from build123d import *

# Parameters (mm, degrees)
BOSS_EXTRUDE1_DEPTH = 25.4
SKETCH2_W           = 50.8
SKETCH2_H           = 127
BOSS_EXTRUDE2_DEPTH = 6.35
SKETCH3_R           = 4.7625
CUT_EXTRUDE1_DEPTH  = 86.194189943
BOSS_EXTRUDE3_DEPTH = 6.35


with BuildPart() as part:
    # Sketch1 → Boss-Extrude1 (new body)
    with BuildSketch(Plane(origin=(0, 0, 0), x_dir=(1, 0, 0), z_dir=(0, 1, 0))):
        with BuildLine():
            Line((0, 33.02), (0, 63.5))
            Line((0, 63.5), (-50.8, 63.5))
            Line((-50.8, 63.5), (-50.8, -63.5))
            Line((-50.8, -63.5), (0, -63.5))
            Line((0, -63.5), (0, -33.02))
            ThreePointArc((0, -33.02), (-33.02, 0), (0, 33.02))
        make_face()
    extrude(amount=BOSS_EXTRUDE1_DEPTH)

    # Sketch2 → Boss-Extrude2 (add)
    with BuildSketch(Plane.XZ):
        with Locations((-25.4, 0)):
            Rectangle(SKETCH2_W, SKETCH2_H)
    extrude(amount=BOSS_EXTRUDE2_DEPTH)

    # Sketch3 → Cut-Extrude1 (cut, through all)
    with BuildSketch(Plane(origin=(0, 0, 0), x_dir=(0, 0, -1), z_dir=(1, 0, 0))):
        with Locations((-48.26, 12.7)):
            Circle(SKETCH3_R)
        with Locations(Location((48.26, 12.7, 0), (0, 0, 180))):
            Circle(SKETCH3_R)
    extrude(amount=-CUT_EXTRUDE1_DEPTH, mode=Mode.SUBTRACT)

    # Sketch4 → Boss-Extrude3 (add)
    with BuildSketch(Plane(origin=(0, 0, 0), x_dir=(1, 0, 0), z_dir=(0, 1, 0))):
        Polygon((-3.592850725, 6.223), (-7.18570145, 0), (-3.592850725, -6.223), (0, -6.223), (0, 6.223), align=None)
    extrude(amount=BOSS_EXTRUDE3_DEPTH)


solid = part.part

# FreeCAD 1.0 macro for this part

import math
import FreeCAD as App
import Part
import Sketcher
from FreeCAD import Vector
Q = App.Units.Quantity


def add_polygon(sketch, points):
    """Adds a closed chain of lines whose ends are joined by coincident constraints."""
    first, n = sketch.GeometryCount, len(points)
    for a, b in zip(points, points[1:] + points[:1]):
        sketch.addGeometry(Part.LineSegment(App.Vector(*a, 0), App.Vector(*b, 0)), False)
    for i in range(n):
        sketch.addConstraint(Sketcher.Constraint("Coincident", first + i, 2, first + (i + 1) % n, 1))

doc = App.newDocument("Part")
body = doc.addObject("PartDesign::Body", "Body")

# Sketch on XZ plane
sketch1 = body.newObject("Sketcher::SketchObject", "Sketch")
sketch1.AttachmentSupport = (doc.getObject("XZ_Plane"), [""])
sketch1.MapMode = "FlatFace"
sketch1.addGeometry([
    Part.LineSegment(Vector(0, -33, 0), Vector(0, -64, 0)),  # 0
    Part.LineSegment(Vector(0, -64, 0), Vector(-51, -64, 0)),  # 1
    Part.LineSegment(Vector(-51, -64, 0), Vector(-51, 64, 0)),  # 2
    Part.LineSegment(Vector(-51, 64, 0), Vector(0, 64, 0)),  # 3
    Part.LineSegment(Vector(0, 64, 0), Vector(0, 33, 0)),  # 4
    Part.ArcOfCircle(Part.Circle(Vector(0, 0, 0), Vector(0, 0, 1), 33), math.radians(90), math.radians(270)),  # 5
], False)
sketch1.addConstraint([
    Sketcher.Constraint("Coincident", 0, 2, 1, 1),
    Sketcher.Constraint("Coincident", 1, 2, 2, 1),
    Sketcher.Constraint("Coincident", 2, 2, 3, 1),
    Sketcher.Constraint("Coincident", 3, 2, 4, 1),
    Sketcher.Constraint("Coincident", 4, 2, 5, 1),
    Sketcher.Constraint("Coincident", 5, 2, 0, 1),
    Sketcher.Constraint("Vertical", 0),
    Sketcher.Constraint("Horizontal", 1),
    Sketcher.Constraint("Vertical", 2),
    Sketcher.Constraint("Horizontal", 3),
    Sketcher.Constraint("Vertical", 4),
    Sketcher.Constraint("Coincident", 5, 3, -1, 1),
    Sketcher.Constraint("Symmetric", 0, 2, 3, 2, -1, 1),
    Sketcher.Constraint("PointOnObject", 0, 2, -2),
    Sketcher.Constraint("Radius", 5, Q("1.3 in")),
    Sketcher.Constraint("DistanceX", 1, 2, 1, 1, Q("2 in")),
    Sketcher.Constraint("DistanceY", 2, 1, 2, 2, Q("5 in")),
])
pad1 = body.newObject("PartDesign::Pad", "Pad")
pad1.Profile = sketch1
pad1.Length = Q("1 in")
pad1.Reversed = True

# Sketch on XZ plane
sketch2 = body.newObject("Sketcher::SketchObject", "Sketch001")
sketch2.AttachmentSupport = (doc.getObject("XZ_Plane"), [""])
sketch2.MapMode = "FlatFace"
add_polygon(sketch2, [(-51, 64), (-51, -64), (0, -64), (0, 64)])  # lines 0-3
sketch2.addConstraint([
    Sketcher.Constraint("Vertical", 0),
    Sketcher.Constraint("Horizontal", 1),
    Sketcher.Constraint("Vertical", 2),
    Sketcher.Constraint("Horizontal", 3),
    Sketcher.Constraint("Symmetric", 1, 2, 2, 2, -1, 1),
    Sketcher.Constraint("DistanceX", 1, 1, 1, 2, Q("2 in")),
    Sketcher.Constraint("DistanceY", 0, 2, 0, 1, Q("5 in")),
])
pad2 = body.newObject("PartDesign::Pad", "Pad001")
pad2.Profile = sketch2
pad2.Length = Q("0.25 in")

# Sketch on YZ plane
sketch3 = body.newObject("Sketcher::SketchObject", "Sketch002")
sketch3.AttachmentSupport = (doc.getObject("YZ_Plane"), [""])
sketch3.MapMode = "FlatFace"
sketch3.addGeometry([
    Part.Circle(Vector(12.7, 48.3, 0), Vector(0, 0, 1), 4.8),
    Part.Circle(Vector(12.7, -48.3, 0), Vector(0, 0, 1), 4.8),
], False)
sketch3.addConstraint([
    Sketcher.Constraint("Equal", 0, 1),
    Sketcher.Constraint("Symmetric", 0, 3, 1, 3, -1),
    Sketcher.Constraint("Diameter", 0, Q("0.375 in")),
    Sketcher.Constraint("DistanceX", -1, 1, 0, 3, Q("0.5 in")),
    Sketcher.Constraint("DistanceY", -1, 1, 0, 3, Q("1.9 in")),
])
pocket1 = body.newObject("PartDesign::Pocket", "Pocket")
pocket1.Profile = sketch3
pocket1.Type = "ThroughAll"

# Sketch on XZ plane
sketch4 = body.newObject("Sketcher::SketchObject", "Sketch003")
sketch4.AttachmentSupport = (doc.getObject("XZ_Plane"), [""])
sketch4.MapMode = "FlatFace"
add_polygon(sketch4, [(-3.6, -6.2), (-7.2, 0), (-3.6, 6.2), (0, 6.2), (0, -6.2)])  # lines 0-4
sketch4.addConstraint([
    Sketcher.Constraint("Horizontal", 2),
    Sketcher.Constraint("Vertical", 3),
    Sketcher.Constraint("Horizontal", 4),
    Sketcher.Constraint("Symmetric", 2, 2, 3, 2, -1, 1),
    Sketcher.Constraint("PointOnObject", 0, 2, -1),
    Sketcher.Constraint("Vertical", 1, 2, 4, 2),
    Sketcher.Constraint("Angle", 0, Q("120 deg")),
    Sketcher.Constraint("DistanceY", 3, 2, 3, 1, Q("0.49 in")),
    Sketcher.Constraint("DistanceX", 2, 1, 2, 2, Q("3.592851 mm")),
])
pad3 = body.newObject("PartDesign::Pad", "Pad002")
pad3.Profile = sketch4
pad3.Length = Q("0.25 in")
pad3.Reversed = True

doc.recompute()
